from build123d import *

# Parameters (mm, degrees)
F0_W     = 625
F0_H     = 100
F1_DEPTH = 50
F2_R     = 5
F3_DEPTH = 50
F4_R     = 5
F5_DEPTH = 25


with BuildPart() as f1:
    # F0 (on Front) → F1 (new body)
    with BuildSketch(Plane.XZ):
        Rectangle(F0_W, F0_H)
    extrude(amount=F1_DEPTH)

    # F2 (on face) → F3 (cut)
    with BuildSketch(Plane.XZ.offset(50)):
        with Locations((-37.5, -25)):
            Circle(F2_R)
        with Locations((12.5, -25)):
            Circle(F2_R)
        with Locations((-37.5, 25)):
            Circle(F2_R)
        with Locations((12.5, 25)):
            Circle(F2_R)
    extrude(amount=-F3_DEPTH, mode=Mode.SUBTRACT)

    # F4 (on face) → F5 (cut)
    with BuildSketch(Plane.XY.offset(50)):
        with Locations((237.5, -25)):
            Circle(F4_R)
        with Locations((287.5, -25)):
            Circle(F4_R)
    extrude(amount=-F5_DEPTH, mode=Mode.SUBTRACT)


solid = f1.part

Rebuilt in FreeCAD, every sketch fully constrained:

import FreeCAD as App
import Part
import Sketcher

V = App.Vector
Q = App.Units.Quantity


def add_polygon(sketch, points):
    """Adds a closed chain of lines whose ends are joined by coincident constraints."""
    first, n = sketch.GeometryCount, len(points)
    for a, b in zip(points, points[1:] + points[:1]):
        sketch.addGeometry(Part.LineSegment(App.Vector(*a, 0), App.Vector(*b, 0)), False)
    for i in range(n):
        sketch.addConstraint(Sketcher.Constraint("Coincident", first + i, 2, first + (i + 1) % n, 1))

doc = App.newDocument("Part")
body = doc.addObject("PartDesign::Body", "Body")

sketch1 = body.newObject("Sketcher::SketchObject", "Sketch")
sketch1.AttachmentSupport = (doc.getObject("XZ_Plane"), [""])
sketch1.MapMode = "FlatFace"
add_polygon(sketch1, [(-312, 50), (-312, -50), (312, -50), (312, 50)])
sketch1.addConstraint(Sketcher.Constraint("Vertical", 0))
sketch1.addConstraint(Sketcher.Constraint("Horizontal", 1))
sketch1.addConstraint(Sketcher.Constraint("Vertical", 2))
sketch1.addConstraint(Sketcher.Constraint("Horizontal", 3))
sketch1.addConstraint(Sketcher.Constraint("Symmetric", 0, 2, 2, 2, -1, 1))
sketch1.addConstraint(Sketcher.Constraint("DistanceX", 1, 1, 1, 2, Q("625 mm")))
sketch1.addConstraint(Sketcher.Constraint("DistanceY", 0, 2, 0, 1, Q("100 mm")))
pad1 = body.newObject("PartDesign::Pad", "Pad")
pad1.Profile = sketch1
pad1.Length = 50

sketch2 = body.newObject("Sketcher::SketchObject", "Sketch001")
sketch2.AttachmentSupport = (doc.getObject("XZ_Plane"), [""])
sketch2.MapMode = "FlatFace"
sketch2.AttachmentOffset = App.Placement(V(0, 0, 50), App.Rotation())
sketch2.addGeometry(Part.Circle(V(-38, -25, 0), V(0, 0, 1), 5), False)
sketch2.addGeometry(Part.Circle(V(12, -25, 0), V(0, 0, 1), 5), False)
sketch2.addGeometry(Part.Circle(V(-38, 25, 0), V(0, 0, 1), 5), False)
sketch2.addGeometry(Part.Circle(V(12, 25, 0), V(0, 0, 1), 5), False)
sketch2.addConstraint(Sketcher.Constraint("Equal", 0, 1))
sketch2.addConstraint(Sketcher.Constraint("Equal", 1, 2))
sketch2.addConstraint(Sketcher.Constraint("Equal", 2, 3))
sketch2.addConstraint(Sketcher.Constraint("Symmetric", 0, 3, 2, 3, -1))
sketch2.addConstraint(Sketcher.Constraint("Symmetric", 1, 3, 3, 3, -1))
sketch2.addConstraint(Sketcher.Constraint("Horizontal", 0, 3, 1, 3))
sketch2.addConstraint(Sketcher.Constraint("Diameter", 0, Q("10 mm")))
sketch2.addConstraint(Sketcher.Constraint("DistanceY", 0, 3, -1, 1, Q("25 mm")))
sketch2.addConstraint(Sketcher.Constraint("DistanceX", 0, 3, 1, 3, Q("50 mm")))
sketch2.addConstraint(Sketcher.Constraint("DistanceX", 0, 3, -1, 1, Q("37.5 mm")))
pocket1 = body.newObject("PartDesign::Pocket", "Pocket")
pocket1.Profile = sketch2
pocket1.Length = 50

sketch3 = body.newObject("Sketcher::SketchObject", "Sketch002")
sketch3.AttachmentSupport = (doc.getObject("XY_Plane"), [""])
sketch3.MapMode = "FlatFace"
sketch3.AttachmentOffset = App.Placement(V(0, 0, 50), App.Rotation())
sketch3.addGeometry(Part.Circle(V(238, -25, 0), V(0, 0, 1), 5), False)
sketch3.addGeometry(Part.Circle(V(288, -25, 0), V(0, 0, 1), 5), False)
sketch3.addConstraint(Sketcher.Constraint("Equal", 0, 1))
sketch3.addConstraint(Sketcher.Constraint("Horizontal", 0, 3, 1, 3))
sketch3.addConstraint(Sketcher.Constraint("Diameter", 0, Q("10 mm")))
sketch3.addConstraint(Sketcher.Constraint("DistanceY", 0, 3, -1, 1, Q("25 mm")))
sketch3.addConstraint(Sketcher.Constraint("DistanceX", 0, 3, 1, 3, Q("50 mm")))
sketch3.addConstraint(Sketcher.Constraint("DistanceX", -1, 1, 0, 3, Q("237.5 mm")))
pocket2 = body.newObject("PartDesign::Pocket", "Pocket001")
pocket2.Profile = sketch3
pocket2.Length = 25

doc.recompute()
